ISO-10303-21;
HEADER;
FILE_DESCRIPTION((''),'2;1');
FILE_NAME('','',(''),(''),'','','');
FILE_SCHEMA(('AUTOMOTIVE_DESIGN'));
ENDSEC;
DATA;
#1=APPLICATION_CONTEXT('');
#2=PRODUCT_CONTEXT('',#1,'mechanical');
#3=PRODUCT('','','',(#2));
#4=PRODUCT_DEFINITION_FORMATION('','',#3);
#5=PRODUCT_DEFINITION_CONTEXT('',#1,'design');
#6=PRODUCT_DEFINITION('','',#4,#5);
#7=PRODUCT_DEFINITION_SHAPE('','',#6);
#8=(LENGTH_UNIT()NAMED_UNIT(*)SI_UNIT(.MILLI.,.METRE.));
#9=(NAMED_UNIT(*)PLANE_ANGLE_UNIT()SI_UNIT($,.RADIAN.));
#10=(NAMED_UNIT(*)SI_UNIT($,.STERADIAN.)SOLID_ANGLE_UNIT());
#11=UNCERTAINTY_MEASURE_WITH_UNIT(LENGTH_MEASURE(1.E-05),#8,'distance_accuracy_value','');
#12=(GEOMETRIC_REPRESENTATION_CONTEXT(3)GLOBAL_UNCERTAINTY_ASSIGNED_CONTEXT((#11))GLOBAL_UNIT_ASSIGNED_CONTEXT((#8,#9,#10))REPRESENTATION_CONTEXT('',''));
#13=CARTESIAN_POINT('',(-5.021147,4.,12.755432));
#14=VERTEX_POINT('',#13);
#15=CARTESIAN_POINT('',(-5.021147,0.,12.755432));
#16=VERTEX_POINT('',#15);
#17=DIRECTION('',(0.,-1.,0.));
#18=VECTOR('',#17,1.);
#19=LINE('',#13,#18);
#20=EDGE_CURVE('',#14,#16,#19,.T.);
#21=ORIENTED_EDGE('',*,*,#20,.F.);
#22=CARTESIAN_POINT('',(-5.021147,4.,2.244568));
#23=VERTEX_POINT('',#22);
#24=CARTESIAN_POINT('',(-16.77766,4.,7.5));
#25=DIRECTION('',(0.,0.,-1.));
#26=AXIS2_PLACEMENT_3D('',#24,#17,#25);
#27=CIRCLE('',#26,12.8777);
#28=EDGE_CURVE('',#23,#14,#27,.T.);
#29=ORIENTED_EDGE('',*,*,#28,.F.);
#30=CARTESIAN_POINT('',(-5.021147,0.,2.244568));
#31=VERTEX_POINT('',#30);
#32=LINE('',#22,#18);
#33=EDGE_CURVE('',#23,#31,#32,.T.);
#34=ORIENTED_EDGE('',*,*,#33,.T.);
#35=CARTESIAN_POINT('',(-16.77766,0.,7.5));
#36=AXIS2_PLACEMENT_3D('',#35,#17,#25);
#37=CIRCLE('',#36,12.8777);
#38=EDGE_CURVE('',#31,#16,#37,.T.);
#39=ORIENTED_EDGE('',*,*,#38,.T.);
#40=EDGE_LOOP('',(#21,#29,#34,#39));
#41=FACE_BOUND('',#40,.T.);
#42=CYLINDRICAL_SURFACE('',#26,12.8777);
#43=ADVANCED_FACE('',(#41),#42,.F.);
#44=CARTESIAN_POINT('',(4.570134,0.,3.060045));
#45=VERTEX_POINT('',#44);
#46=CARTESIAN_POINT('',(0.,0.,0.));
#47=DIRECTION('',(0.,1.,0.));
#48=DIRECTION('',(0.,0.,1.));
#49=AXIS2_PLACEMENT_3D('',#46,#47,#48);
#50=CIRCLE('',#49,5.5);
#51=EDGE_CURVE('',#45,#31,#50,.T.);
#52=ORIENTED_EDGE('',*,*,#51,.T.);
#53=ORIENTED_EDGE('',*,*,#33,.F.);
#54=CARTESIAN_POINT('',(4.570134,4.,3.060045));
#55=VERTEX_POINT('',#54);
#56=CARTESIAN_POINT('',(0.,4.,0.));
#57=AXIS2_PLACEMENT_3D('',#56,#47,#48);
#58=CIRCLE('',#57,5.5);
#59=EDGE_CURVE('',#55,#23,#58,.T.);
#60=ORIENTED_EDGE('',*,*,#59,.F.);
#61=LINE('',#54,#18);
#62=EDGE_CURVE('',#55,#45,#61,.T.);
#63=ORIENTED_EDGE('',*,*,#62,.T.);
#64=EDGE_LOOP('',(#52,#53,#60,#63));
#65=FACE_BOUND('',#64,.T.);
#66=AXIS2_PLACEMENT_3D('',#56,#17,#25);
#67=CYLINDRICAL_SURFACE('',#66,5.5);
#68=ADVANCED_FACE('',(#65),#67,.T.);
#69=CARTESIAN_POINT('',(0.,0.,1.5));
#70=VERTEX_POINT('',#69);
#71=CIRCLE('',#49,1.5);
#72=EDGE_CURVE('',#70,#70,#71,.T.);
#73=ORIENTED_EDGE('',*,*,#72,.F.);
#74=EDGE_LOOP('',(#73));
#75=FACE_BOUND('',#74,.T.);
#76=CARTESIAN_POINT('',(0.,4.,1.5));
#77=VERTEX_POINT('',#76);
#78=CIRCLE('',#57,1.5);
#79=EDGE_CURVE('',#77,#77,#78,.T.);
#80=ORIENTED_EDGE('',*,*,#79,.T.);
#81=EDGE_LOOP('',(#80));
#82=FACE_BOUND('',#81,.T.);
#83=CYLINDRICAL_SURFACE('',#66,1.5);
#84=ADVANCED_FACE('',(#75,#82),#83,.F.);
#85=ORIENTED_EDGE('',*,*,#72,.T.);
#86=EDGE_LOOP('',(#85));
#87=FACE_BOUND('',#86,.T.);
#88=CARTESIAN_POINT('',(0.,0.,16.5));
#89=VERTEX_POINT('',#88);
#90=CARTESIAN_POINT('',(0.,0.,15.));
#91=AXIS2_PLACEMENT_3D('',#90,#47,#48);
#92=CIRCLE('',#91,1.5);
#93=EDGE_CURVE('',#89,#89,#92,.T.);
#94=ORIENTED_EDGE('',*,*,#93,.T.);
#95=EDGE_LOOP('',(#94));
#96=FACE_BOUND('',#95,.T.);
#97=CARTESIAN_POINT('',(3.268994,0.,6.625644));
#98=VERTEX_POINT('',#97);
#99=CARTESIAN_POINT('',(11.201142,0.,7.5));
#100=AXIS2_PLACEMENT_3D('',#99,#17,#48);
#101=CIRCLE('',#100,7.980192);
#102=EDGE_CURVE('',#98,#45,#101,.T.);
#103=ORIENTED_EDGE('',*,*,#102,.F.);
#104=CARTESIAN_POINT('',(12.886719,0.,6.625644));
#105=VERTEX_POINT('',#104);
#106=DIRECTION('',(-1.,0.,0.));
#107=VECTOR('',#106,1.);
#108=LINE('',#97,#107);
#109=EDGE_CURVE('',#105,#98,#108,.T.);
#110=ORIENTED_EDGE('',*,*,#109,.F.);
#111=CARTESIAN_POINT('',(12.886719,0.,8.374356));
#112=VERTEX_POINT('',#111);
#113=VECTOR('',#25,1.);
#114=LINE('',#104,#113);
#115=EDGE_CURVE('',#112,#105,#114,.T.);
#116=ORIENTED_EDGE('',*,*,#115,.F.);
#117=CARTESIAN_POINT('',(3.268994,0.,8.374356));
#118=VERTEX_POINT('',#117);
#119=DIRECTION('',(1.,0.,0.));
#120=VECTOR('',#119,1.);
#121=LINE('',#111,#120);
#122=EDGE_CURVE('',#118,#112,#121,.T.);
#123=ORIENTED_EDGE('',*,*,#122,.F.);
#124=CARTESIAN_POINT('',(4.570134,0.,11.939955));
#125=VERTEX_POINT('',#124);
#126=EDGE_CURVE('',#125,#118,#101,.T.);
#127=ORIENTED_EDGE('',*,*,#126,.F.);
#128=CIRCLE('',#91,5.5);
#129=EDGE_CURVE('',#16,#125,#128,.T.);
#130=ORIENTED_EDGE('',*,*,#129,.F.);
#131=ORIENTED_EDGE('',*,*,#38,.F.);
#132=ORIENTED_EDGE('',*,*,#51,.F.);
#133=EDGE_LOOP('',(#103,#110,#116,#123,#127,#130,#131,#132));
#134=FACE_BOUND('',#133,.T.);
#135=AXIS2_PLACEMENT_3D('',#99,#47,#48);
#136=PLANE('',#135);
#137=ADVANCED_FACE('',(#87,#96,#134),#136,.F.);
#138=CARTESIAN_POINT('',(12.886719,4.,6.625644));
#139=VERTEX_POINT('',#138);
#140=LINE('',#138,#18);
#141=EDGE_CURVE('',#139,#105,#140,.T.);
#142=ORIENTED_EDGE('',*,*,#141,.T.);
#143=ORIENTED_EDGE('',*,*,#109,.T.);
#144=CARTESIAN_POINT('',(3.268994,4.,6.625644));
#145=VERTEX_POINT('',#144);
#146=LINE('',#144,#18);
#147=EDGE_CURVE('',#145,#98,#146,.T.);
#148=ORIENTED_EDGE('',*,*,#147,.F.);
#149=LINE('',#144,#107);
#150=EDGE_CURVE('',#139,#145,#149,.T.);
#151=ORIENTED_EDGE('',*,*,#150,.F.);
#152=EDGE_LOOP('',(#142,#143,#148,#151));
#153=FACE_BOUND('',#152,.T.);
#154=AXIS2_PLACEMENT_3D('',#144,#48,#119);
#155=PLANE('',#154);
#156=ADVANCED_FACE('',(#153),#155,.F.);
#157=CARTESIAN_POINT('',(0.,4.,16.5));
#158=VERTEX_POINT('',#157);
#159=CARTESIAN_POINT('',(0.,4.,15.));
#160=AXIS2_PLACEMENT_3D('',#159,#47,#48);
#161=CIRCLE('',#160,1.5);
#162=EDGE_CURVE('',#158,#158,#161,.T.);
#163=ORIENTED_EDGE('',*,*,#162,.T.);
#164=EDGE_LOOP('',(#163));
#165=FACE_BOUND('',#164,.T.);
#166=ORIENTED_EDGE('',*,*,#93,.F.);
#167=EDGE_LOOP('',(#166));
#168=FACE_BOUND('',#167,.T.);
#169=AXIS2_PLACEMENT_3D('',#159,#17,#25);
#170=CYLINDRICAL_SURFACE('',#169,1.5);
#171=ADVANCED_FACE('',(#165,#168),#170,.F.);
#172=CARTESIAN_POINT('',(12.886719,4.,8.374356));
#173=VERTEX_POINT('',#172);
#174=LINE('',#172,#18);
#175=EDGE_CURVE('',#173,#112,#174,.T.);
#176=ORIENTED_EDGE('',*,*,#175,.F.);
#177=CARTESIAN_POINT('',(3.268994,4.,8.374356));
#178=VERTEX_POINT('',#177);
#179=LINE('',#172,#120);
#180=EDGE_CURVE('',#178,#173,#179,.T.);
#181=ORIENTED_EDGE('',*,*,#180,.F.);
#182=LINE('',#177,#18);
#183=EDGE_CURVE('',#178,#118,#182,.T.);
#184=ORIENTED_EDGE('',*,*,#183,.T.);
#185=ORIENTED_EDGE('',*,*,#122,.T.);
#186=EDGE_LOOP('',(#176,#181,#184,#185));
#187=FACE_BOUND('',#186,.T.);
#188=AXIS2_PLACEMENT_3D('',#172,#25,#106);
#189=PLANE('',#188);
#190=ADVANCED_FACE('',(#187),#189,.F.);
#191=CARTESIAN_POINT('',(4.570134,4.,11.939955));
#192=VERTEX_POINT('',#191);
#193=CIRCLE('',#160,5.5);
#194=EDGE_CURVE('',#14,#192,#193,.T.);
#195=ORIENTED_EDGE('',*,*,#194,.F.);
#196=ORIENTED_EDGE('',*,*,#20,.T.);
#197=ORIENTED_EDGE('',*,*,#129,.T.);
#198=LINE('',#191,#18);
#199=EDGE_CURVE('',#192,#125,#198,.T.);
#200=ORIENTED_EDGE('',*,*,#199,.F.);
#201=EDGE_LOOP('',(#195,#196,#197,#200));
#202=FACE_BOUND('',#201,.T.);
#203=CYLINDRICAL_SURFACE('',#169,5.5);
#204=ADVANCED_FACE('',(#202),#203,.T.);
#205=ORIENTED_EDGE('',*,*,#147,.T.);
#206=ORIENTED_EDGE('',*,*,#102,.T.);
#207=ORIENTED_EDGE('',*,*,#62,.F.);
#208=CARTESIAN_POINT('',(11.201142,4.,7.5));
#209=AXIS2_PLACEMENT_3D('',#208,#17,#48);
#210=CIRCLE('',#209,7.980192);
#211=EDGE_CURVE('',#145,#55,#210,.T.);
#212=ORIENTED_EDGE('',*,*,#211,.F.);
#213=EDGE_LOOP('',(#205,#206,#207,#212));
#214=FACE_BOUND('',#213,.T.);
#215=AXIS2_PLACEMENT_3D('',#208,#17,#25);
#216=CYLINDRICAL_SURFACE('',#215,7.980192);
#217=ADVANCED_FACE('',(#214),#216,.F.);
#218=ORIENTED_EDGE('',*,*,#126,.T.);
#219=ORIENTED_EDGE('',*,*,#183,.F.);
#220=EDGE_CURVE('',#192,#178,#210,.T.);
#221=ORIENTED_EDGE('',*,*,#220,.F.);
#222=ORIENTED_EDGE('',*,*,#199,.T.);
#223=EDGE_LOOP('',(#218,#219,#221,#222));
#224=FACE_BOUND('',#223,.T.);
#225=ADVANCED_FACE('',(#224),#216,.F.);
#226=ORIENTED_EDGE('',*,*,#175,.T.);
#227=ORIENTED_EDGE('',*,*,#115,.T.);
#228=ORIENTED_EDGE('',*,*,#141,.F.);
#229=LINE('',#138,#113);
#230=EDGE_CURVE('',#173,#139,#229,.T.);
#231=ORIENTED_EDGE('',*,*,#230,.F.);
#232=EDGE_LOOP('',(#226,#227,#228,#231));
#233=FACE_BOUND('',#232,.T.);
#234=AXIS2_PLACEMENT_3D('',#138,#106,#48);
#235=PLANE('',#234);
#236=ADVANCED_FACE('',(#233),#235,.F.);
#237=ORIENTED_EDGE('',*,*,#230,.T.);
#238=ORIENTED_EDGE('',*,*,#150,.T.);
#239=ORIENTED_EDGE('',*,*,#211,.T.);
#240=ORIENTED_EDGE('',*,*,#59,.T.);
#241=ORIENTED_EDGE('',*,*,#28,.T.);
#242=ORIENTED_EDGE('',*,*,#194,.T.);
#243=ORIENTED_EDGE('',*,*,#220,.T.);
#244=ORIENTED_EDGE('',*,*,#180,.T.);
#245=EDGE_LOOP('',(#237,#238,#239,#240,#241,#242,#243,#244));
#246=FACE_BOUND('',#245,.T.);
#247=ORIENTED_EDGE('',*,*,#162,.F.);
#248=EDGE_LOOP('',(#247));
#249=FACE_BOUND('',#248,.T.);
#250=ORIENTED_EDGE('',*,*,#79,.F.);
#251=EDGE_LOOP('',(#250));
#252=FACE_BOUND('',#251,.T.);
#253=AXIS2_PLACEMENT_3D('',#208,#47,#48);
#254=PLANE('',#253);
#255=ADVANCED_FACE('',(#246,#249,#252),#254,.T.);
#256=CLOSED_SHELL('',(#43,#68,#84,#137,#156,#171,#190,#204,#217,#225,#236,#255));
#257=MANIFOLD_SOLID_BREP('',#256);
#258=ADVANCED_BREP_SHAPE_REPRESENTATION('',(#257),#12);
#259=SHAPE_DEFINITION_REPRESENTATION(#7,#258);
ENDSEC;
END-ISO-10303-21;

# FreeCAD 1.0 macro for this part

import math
import FreeCAD as App
import Part
import Sketcher

doc = App.newDocument("Part")
body = doc.addObject("PartDesign::Body", "Body")

sketch1 = doc.addObject("Sketcher::SketchObject", "Sketch")
body.addObject(sketch1)
sketch1.AttachmentSupport = (doc.XZ_Plane, [""])
sketch1.MapMode = "FlatFace"
sketch1.addGeometry([
    Part.LineSegment(App.Vector(12.886719, 6.625644, 0), App.Vector(3.268994, 6.625644, 0)),
    Part.ArcOfCircle(Part.Circle(App.Vector(11.201142, 7.5, 0), App.Vector(0, 0, 1), 7.980192), math.radians(-173.709716), math.radians(-146.19474)),
    Part.ArcOfCircle(Part.Circle(App.Vector(0, 0, 0), App.Vector(0, 0, 1), 5.5), math.radians(155.914258), math.radians(393.80526)),
    Part.ArcOfCircle(Part.Circle(App.Vector(-16.77766, 7.5, 0), App.Vector(0, 0, 1), 12.8777), math.radians(-24.085742), math.radians(24.085742)),
    Part.ArcOfCircle(Part.Circle(App.Vector(0, 15, 0), App.Vector(0, 0, 1), 5.5), math.radians(-33.80526), math.radians(204.085742)),
    Part.ArcOfCircle(Part.Circle(App.Vector(11.201142, 7.5, 0), App.Vector(0, 0, 1), 7.980192), math.radians(146.19474), math.radians(173.709716)),
    Part.LineSegment(App.Vector(3.268994, 8.374356, 0), App.Vector(12.886719, 8.374356, 0)),
    Part.LineSegment(App.Vector(12.886719, 8.374356, 0), App.Vector(12.886719, 6.625644, 0)),
    Part.Circle(App.Vector(0, 15, 0), App.Vector(0, 0, 1), 1.5),
    Part.Circle(App.Vector(0, 0, 0), App.Vector(0, 0, 1), 1.5),
], False)
sketch1.addConstraint([
    Sketcher.Constraint("Coincident", 0, 2, 1, 1),
    Sketcher.Constraint("Tangent", 1, 2, 2, 2),
    Sketcher.Constraint("Tangent", 2, 1, 3, 1),
    Sketcher.Constraint("Tangent", 3, 2, 4, 2),
    Sketcher.Constraint("Tangent", 4, 1, 5, 1),
    Sketcher.Constraint("Coincident", 5, 2, 6, 1),
    Sketcher.Constraint("Coincident", 6, 2, 7, 1),
    Sketcher.Constraint("Coincident", 7, 2, 0, 1),
    Sketcher.Constraint("Horizontal", 0),
    Sketcher.Constraint("Horizontal", 6),
    Sketcher.Constraint("Vertical", 7),
    Sketcher.Constraint("Coincident", 2, 3, -1, 1),
    Sketcher.Constraint("Coincident", 9, 3, -1, 1),
    Sketcher.Constraint("Coincident", 5, 3, 1, 3),
    Sketcher.Constraint("Coincident", 8, 3, 4, 3),
    Sketcher.Constraint("Equal", 2, 4),
    Sketcher.Constraint("Equal", 1, 5),
    Sketcher.Constraint("Equal", 8, 9),
    Sketcher.Constraint("PointOnObject", 4, 3, -2),
    Sketcher.Constraint("Vertical", 0, 2, 5, 2),
    Sketcher.Constraint("Diameter", 8, 3.0),
    Sketcher.Constraint("Radius", 2, 5.5),
    Sketcher.Constraint("DistanceY", -1, 1, 4, 3, 15.0),
    Sketcher.Constraint("Radius", 3, 12.8777),
    Sketcher.Constraint("Radius", 1, 7.980192),
    Sketcher.Constraint("DistanceY", 7, 2, 7, 1, 1.748712),
    Sketcher.Constraint("DistanceX", 0, 2, 0, 1, 9.617725),
])
pad1 = doc.addObject("PartDesign::Pad", "Pad")
body.addObject(pad1)
pad1.Profile = sketch1
pad1.Length = 4
pad1.Reversed = True

doc.recompute()
